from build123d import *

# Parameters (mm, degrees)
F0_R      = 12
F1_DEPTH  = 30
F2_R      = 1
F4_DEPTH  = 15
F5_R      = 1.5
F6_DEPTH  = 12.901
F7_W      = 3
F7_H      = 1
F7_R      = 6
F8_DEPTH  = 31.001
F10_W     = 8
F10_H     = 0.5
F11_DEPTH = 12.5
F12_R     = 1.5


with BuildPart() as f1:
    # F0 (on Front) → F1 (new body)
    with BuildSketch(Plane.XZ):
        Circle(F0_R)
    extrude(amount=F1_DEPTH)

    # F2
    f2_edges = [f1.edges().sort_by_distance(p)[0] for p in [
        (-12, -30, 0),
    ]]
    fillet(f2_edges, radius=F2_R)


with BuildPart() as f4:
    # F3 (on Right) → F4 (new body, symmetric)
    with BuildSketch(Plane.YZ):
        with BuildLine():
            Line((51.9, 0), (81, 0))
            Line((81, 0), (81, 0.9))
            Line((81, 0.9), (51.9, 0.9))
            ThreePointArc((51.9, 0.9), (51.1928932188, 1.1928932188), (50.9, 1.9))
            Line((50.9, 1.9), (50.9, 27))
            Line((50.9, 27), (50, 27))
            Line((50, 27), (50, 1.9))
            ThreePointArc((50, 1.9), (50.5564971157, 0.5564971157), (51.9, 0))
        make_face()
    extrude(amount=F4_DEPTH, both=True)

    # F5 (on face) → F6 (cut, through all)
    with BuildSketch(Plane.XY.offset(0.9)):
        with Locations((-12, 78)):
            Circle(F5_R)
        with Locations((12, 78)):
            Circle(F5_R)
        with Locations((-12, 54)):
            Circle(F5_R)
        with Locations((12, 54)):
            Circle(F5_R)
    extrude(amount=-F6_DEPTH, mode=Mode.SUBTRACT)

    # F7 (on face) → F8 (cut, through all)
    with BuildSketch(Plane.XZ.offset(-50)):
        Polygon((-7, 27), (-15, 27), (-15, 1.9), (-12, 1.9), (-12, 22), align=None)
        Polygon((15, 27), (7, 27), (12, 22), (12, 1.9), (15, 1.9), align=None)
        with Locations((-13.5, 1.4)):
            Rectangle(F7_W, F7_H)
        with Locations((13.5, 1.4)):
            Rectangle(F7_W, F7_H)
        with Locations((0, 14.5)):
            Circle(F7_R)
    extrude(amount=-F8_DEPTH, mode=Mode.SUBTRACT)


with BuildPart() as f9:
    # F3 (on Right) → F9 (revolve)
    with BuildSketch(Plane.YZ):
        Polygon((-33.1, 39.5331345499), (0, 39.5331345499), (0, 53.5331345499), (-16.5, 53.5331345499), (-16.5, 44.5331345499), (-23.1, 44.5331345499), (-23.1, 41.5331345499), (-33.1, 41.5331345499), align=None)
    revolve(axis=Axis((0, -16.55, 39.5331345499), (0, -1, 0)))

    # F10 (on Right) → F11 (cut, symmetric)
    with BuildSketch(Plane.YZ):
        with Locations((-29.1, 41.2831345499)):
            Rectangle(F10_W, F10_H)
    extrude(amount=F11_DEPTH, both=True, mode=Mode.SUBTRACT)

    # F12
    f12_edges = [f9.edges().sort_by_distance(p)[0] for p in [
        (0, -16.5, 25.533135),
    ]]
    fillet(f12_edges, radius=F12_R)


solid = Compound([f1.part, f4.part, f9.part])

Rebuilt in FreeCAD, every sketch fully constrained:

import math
import FreeCAD as App
import Part
import Sketcher

V = App.Vector
Q = App.Units.Quantity


def edges_at(feature, points):
    """Names of the edges that pass closest to the given points."""
    edges = feature.Shape.Edges
    near = lambda p: min(range(len(edges)), key=lambda i: edges[i].distToShape(Part.Vertex(*p))[0])
    return sorted({f"Edge{near(p) + 1}" for p in points})

doc = App.newDocument("Part")
body = doc.addObject("PartDesign::Body", "Body")

sketch1 = body.newObject("Sketcher::SketchObject", "Sketch")
sketch1.AttachmentSupport = (doc.getObject("XZ_Plane"), [""])
sketch1.MapMode = "FlatFace"
sketch1.addGeometry(Part.Circle(V(0, 0, 0), V(0, 0, 1), 12), False)
sketch1.addConstraint([
    Sketcher.Constraint("Coincident", 0, 3, -1, 1),
    Sketcher.Constraint("Diameter", 0, Q("24 mm")),
])
pad1 = body.newObject("PartDesign::Pad", "Pad")
pad1.Profile = sketch1
pad1.Length = 30
doc.recompute()

fillet = body.newObject("PartDesign::Fillet", "Fillet")
fillet.Base = (pad1, edges_at(pad1, [(-12, -30, 0)]))
fillet.Radius = 1
body2 = doc.addObject("PartDesign::Body", "Body001")

sketch2 = body2.newObject("Sketcher::SketchObject", "Sketch001")
sketch2.AttachmentSupport = (doc.getObject("YZ_Plane001"), [""])
sketch2.MapMode = "FlatFace"
sketch2.addGeometry([
    Part.LineSegment(V(51.9, 0, 0), V(81, 0, 0)),
    Part.LineSegment(V(81, 0, 0), V(81, 0.9, 0)),
    Part.LineSegment(V(81, 0.9, 0), V(51.9, 0.9, 0)),
    Part.ArcOfCircle(Part.Circle(V(51.9, 1.9, 0), V(0, 0, 1), 1), math.radians(180), math.radians(270)),
    Part.LineSegment(V(50.9, 1.9, 0), V(50.9, 27, 0)),
    Part.LineSegment(V(50.9, 27, 0), V(50, 27, 0)),
    Part.LineSegment(V(50, 27, 0), V(50, 1.9, 0)),
    Part.ArcOfCircle(Part.Circle(V(51.9, 1.9, 0), V(0, 0, 1), 1.9), math.radians(180), math.radians(270)),
], False)
sketch2.addConstraint([
    Sketcher.Constraint("Coincident", 0, 2, 1, 1),
    Sketcher.Constraint("Coincident", 1, 2, 2, 1),
    Sketcher.Constraint("Tangent", 2, 2, 3, 2),
    Sketcher.Constraint("Tangent", 3, 1, 4, 1),
    Sketcher.Constraint("Coincident", 4, 2, 5, 1),
    Sketcher.Constraint("Coincident", 5, 2, 6, 1),
    Sketcher.Constraint("Tangent", 6, 2, 7, 1),
    Sketcher.Constraint("Tangent", 7, 2, 0, 1),
    Sketcher.Constraint("Horizontal", 0),
    Sketcher.Constraint("Vertical", 1),
    Sketcher.Constraint("Horizontal", 2),
    Sketcher.Constraint("Vertical", 4),
    Sketcher.Constraint("Horizontal", 5),
    Sketcher.Constraint("Vertical", 6),
    Sketcher.Constraint("Coincident", 7, 3, 3, 3),
    Sketcher.Constraint("PointOnObject", 0, 2, -1),
    Sketcher.Constraint("Radius", 3, Q("1 mm")),
    Sketcher.Constraint("Radius", 7, Q("1.9 mm")),
    Sketcher.Constraint("DistanceX", 0, 1, 0, 2, Q("29.1 mm")),
    Sketcher.Constraint("DistanceY", 4, 1, 4, 2, Q("25.1 mm")),
    Sketcher.Constraint("DistanceX", -1, 1, 0, 2, Q("81 mm")),
])
pad2 = body2.newObject("PartDesign::Pad", "Pad001")
pad2.Profile = sketch2
pad2.Length = 30
pad2.Midplane = True

sketch3 = body2.newObject("Sketcher::SketchObject", "Sketch002")
sketch3.AttachmentSupport = (doc.getObject("XY_Plane001"), [""])
sketch3.MapMode = "FlatFace"
sketch3.AttachmentOffset = App.Placement(V(0, 0, 0.9), App.Rotation())
sketch3.addGeometry([
    Part.Circle(V(-12, 78, 0), V(0, 0, 1), 1.5),
    Part.Circle(V(12, 78, 0), V(0, 0, 1), 1.5),
    Part.Circle(V(-12, 54, 0), V(0, 0, 1), 1.5),
    Part.Circle(V(12, 54, 0), V(0, 0, 1), 1.5),
], False)
sketch3.addConstraint([
    Sketcher.Constraint("Equal", 0, 1),
    Sketcher.Constraint("Equal", 1, 2),
    Sketcher.Constraint("Equal", 2, 3),
    Sketcher.Constraint("Symmetric", 0, 3, 1, 3, -2),
    Sketcher.Constraint("Symmetric", 2, 3, 3, 3, -2),
    Sketcher.Constraint("Vertical", 0, 3, 2, 3),
    Sketcher.Constraint("Diameter", 0, Q("3 mm")),
    Sketcher.Constraint("DistanceX", 0, 3, -1, 1, Q("12 mm")),
    Sketcher.Constraint("DistanceY", -1, 1, 0, 3, Q("78 mm")),
    Sketcher.Constraint("DistanceY", -1, 1, 2, 3, Q("54 mm")),
])
pocket1 = body2.newObject("PartDesign::Pocket", "Pocket")
pocket1.Profile = sketch3
pocket1.Type = "ThroughAll"

sketch4 = body2.newObject("Sketcher::SketchObject", "Sketch003")
sketch4.AttachmentSupport = (doc.getObject("XZ_Plane001"), [""])
sketch4.MapMode = "FlatFace"
sketch4.AttachmentOffset = App.Placement(V(0, 0, -50), App.Rotation())
sketch4.addGeometry([
    Part.LineSegment(V(-7, 27, 0), V(-15, 27, 0)),
    Part.LineSegment(V(-15, 27, 0), V(-15, 0.9, 0)),
    Part.LineSegment(V(-15, 0.9, 0), V(-12, 0.9, 0)),
    Part.LineSegment(V(-12, 0.9, 0), V(-12, 22, 0)),
    Part.LineSegment(V(-12, 22, 0), V(-7, 27, 0)),
    Part.LineSegment(V(15, 27, 0), V(7, 27, 0)),
    Part.LineSegment(V(7, 27, 0), V(12, 22, 0)),
    Part.LineSegment(V(12, 22, 0), V(12, 0.9, 0)),
    Part.LineSegment(V(12, 0.9, 0), V(15, 0.9, 0)),
    Part.LineSegment(V(15, 0.9, 0), V(15, 27, 0)),
    Part.Circle(V(0, 14.5, 0), V(0, 0, 1), 6),
], False)
sketch4.addConstraint([
    Sketcher.Constraint("Coincident", 0, 2, 1, 1),
    Sketcher.Constraint("Coincident", 1, 2, 2, 1),
    Sketcher.Constraint("Coincident", 2, 2, 3, 1),
    Sketcher.Constraint("Coincident", 3, 2, 4, 1),
    Sketcher.Constraint("Coincident", 4, 2, 0, 1),
    Sketcher.Constraint("Coincident", 5, 2, 6, 1),
    Sketcher.Constraint("Coincident", 6, 2, 7, 1),
    Sketcher.Constraint("Coincident", 7, 2, 8, 1),
    Sketcher.Constraint("Coincident", 8, 2, 9, 1),
    Sketcher.Constraint("Coincident", 9, 2, 5, 1),
    Sketcher.Constraint("Horizontal", 0),
    Sketcher.Constraint("Vertical", 1),
    Sketcher.Constraint("Horizontal", 2),
    Sketcher.Constraint("Vertical", 3),
    Sketcher.Constraint("Horizontal", 5),
    Sketcher.Constraint("Vertical", 7),
    Sketcher.Constraint("Horizontal", 8),
    Sketcher.Constraint("Vertical", 9),
    Sketcher.Constraint("Symmetric", 4, 2, 5, 2, -2),
    Sketcher.Constraint("Symmetric", 3, 2, 6, 2, -2),
    Sketcher.Constraint("Symmetric", 1, 2, 8, 2, -2),
    Sketcher.Constraint("PointOnObject", 10, 3, -2),
    Sketcher.Constraint("Perpendicular", 4, 6),
    Sketcher.Constraint("Diameter", 10, Q("12 mm")),
    Sketcher.Constraint("DistanceX", 0, 2, 0, 1, Q("8 mm")),
    Sketcher.Constraint("DistanceX", 2, 1, 2, 2, Q("3 mm")),
    Sketcher.Constraint("DistanceY", 1, 2, 1, 1, Q("26.1 mm")),
    Sketcher.Constraint("DistanceX", 0, 2, -1, 1, Q("15 mm")),
    Sketcher.Constraint("DistanceY", -1, 1, 0, 2, Q("27 mm")),
    Sketcher.Constraint("DistanceY", -1, 1, 10, 3, Q("14.5 mm")),
])
pocket2 = body2.newObject("PartDesign::Pocket", "Pocket001")
pocket2.Profile = sketch4
pocket2.Type = "ThroughAll"
body3 = doc.addObject("PartDesign::Body", "Body002")

sketch5 = body3.newObject("Sketcher::SketchObject", "Sketch004")
sketch5.AttachmentSupport = (doc.getObject("YZ_Plane002"), [""])
sketch5.MapMode = "FlatFace"
sketch5.addGeometry([
    Part.LineSegment(V(-33.1, 39.533135, 0), V(0, 39.533135, 0)),
    Part.LineSegment(V(0, 39.533135, 0), V(0, 53.533135, 0)),
    Part.LineSegment(V(0, 53.533135, 0), V(-16.5, 53.533135, 0)),
    Part.LineSegment(V(-16.5, 53.533135, 0), V(-16.5, 44.533135, 0)),
    Part.LineSegment(V(-16.5, 44.533135, 0), V(-23.1, 44.533135, 0)),
    Part.LineSegment(V(-23.1, 44.533135, 0), V(-23.1, 41.533135, 0)),
    Part.LineSegment(V(-23.1, 41.533135, 0), V(-33.1, 41.533135, 0)),
    Part.LineSegment(V(-33.1, 41.533135, 0), V(-33.1, 39.533135, 0)),
], False)
sketch5.addGeometry(Part.LineSegment(V(0, 39.533135, 0), V(-33.1, 39.533135, 0)), True)
sketch5.addConstraint([
    Sketcher.Constraint("Coincident", 0, 2, 1, 1),
    Sketcher.Constraint("Coincident", 1, 2, 2, 1),
    Sketcher.Constraint("Coincident", 2, 2, 3, 1),
    Sketcher.Constraint("Coincident", 3, 2, 4, 1),
    Sketcher.Constraint("Coincident", 4, 2, 5, 1),
    Sketcher.Constraint("Coincident", 5, 2, 6, 1),
    Sketcher.Constraint("Coincident", 6, 2, 7, 1),
    Sketcher.Constraint("Coincident", 7, 2, 0, 1),
    Sketcher.Constraint("Horizontal", 0),
    Sketcher.Constraint("Vertical", 1),
    Sketcher.Constraint("Horizontal", 2),
    Sketcher.Constraint("Vertical", 3),
    Sketcher.Constraint("Horizontal", 4),
    Sketcher.Constraint("Vertical", 5),
    Sketcher.Constraint("Horizontal", 6),
    Sketcher.Constraint("Vertical", 7),
    Sketcher.Constraint("Horizontal", 8),
    Sketcher.Constraint("Coincident", 8, 1, 0, 2),
    Sketcher.Constraint("PointOnObject", 0, 2, -2),
    Sketcher.Constraint("Vertical", 6, 2, 8, 2),
    Sketcher.Constraint("DistanceX", 6, 2, 6, 1, Q("10 mm")),
    Sketcher.Constraint("DistanceY", 1, 1, 1, 2, Q("14 mm")),
    Sketcher.Constraint("DistanceY", 3, 2, 3, 1, Q("9 mm")),
    Sketcher.Constraint("DistanceY", 5, 2, 5, 1, Q("3 mm")),
    Sketcher.Constraint("DistanceX", 0, 1, 0, 2, Q("33.1 mm")),
    Sketcher.Constraint("DistanceX", 2, 2, 2, 1, Q("16.5 mm")),
    Sketcher.Constraint("DistanceY", -1, 1, 0, 2, Q("39.533135 mm")),
])
revolution = body3.newObject("PartDesign::Revolution", "Revolution")
revolution.Profile = sketch5
revolution.ReferenceAxis = (sketch5, ["Axis0"])
revolution.Angle = 360

sketch6 = body3.newObject("Sketcher::SketchObject", "Sketch005")
sketch6.AttachmentSupport = (doc.getObject("YZ_Plane002"), [""])
sketch6.MapMode = "FlatFace"
sketch6.addGeometry([
    Part.LineSegment(V(-33.1, 41.533135, 0), V(-33.1, 41.033135, 0)),
    Part.LineSegment(V(-33.1, 41.033135, 0), V(-25.1, 41.033135, 0)),
    Part.LineSegment(V(-25.1, 41.033135, 0), V(-25.1, 41.533135, 0)),
    Part.LineSegment(V(-25.1, 41.533135, 0), V(-33.1, 41.533135, 0)),
], False)
sketch6.addConstraint([
    Sketcher.Constraint("Coincident", 0, 2, 1, 1),
    Sketcher.Constraint("Coincident", 1, 2, 2, 1),
    Sketcher.Constraint("Coincident", 2, 2, 3, 1),
    Sketcher.Constraint("Coincident", 3, 2, 0, 1),
    Sketcher.Constraint("Vertical", 0),
    Sketcher.Constraint("Horizontal", 1),
    Sketcher.Constraint("Vertical", 2),
    Sketcher.Constraint("Horizontal", 3),
    Sketcher.Constraint("DistanceX", 1, 1, 1, 2, Q("8 mm")),
    Sketcher.Constraint("DistanceY", 0, 2, 0, 1, Q("0.5 mm")),
    Sketcher.Constraint("DistanceX", 0, 2, -1, 1, Q("33.1 mm")),
    Sketcher.Constraint("DistanceY", -1, 1, 0, 2, Q("41.033135 mm")),
])
pocket3 = body3.newObject("PartDesign::Pocket", "Pocket002")
pocket3.Profile = sketch6
pocket3.Length = 25
pocket3.Midplane = True
doc.recompute()

fillet2 = body3.newObject("PartDesign::Fillet", "Fillet001")
fillet2.Base = (pocket3, edges_at(pocket3, [(0, -16.5, 25.533)]))
fillet2.Radius = 1.5

doc.recompute()
